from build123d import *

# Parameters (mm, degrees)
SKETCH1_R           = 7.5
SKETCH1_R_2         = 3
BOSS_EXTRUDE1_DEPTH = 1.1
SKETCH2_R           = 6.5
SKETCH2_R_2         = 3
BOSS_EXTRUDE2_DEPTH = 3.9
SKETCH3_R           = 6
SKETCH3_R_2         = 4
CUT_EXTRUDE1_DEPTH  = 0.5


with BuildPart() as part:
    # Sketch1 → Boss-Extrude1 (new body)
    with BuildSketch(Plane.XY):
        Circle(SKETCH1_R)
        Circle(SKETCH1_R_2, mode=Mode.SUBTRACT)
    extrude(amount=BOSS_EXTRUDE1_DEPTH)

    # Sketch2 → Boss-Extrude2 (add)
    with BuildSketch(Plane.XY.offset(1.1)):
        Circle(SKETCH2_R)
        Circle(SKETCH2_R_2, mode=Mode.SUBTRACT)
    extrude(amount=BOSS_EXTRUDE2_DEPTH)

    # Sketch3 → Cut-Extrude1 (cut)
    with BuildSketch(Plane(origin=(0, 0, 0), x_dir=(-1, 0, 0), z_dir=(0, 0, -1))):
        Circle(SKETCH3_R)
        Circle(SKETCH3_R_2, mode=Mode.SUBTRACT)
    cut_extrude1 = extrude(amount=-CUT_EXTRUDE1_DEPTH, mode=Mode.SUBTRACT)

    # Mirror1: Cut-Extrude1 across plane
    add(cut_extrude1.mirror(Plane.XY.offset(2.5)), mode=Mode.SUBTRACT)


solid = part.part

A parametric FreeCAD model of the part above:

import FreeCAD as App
import Part
import Sketcher

doc = App.newDocument("Part")
body = doc.addObject("PartDesign::Body", "Body")

# Sketch on XY plane
sketch1 = doc.addObject("Sketcher::SketchObject", "Sketch")
body.addObject(sketch1)
sketch1.AttachmentSupport = (doc.XY_Plane, [""])
sketch1.MapMode = "FlatFace"
sketch1.addGeometry(Part.Circle(App.Vector(0, 0, 0), App.Vector(0, 0, 1), 7.5), False)
sketch1.addGeometry(Part.Circle(App.Vector(0, 0, 0), App.Vector(0, 0, 1), 3), False)
sketch1.addConstraint(Sketcher.Constraint("Coincident", 0, 3, -1, 1))
sketch1.addConstraint(Sketcher.Constraint("Coincident", 1, 3, -1, 1))
sketch1.addConstraint(Sketcher.Constraint("Diameter", 0, 15.0))
sketch1.addConstraint(Sketcher.Constraint("Diameter", 1, 6.0))
pad1 = doc.addObject("PartDesign::Pad", "Pad")
body.addObject(pad1)
pad1.Profile = sketch1
pad1.Length = 1.1

# Sketch on XY plane
sketch2 = doc.addObject("Sketcher::SketchObject", "Sketch001")
body.addObject(sketch2)
sketch2.AttachmentSupport = (doc.XY_Plane, [""])
sketch2.MapMode = "FlatFace"
sketch2.AttachmentOffset = App.Placement(App.Vector(0, 0, 1.1), App.Rotation())
sketch2.addGeometry(Part.Circle(App.Vector(0, 0, 0), App.Vector(0, 0, 1), 6.5), False)
sketch2.addGeometry(Part.Circle(App.Vector(0, 0, 0), App.Vector(0, 0, 1), 3), False)
sketch2.addConstraint(Sketcher.Constraint("Coincident", 0, 3, -1, 1))
sketch2.addConstraint(Sketcher.Constraint("Coincident", 1, 3, -1, 1))
sketch2.addConstraint(Sketcher.Constraint("Diameter", 0, 13.0))
sketch2.addConstraint(Sketcher.Constraint("Diameter", 1, 6.0))
pad2 = doc.addObject("PartDesign::Pad", "Pad001")
body.addObject(pad2)
pad2.Profile = sketch2
pad2.Length = 3.9

# Sketch on XY plane
sketch3 = doc.addObject("Sketcher::SketchObject", "Sketch002")
body.addObject(sketch3)
sketch3.AttachmentSupport = (doc.XY_Plane, [""])
sketch3.MapMode = "FlatFace"
sketch3.addGeometry(Part.Circle(App.Vector(0, 0, 0), App.Vector(0, 0, 1), 6), False)
sketch3.addGeometry(Part.Circle(App.Vector(0, 0, 0), App.Vector(0, 0, 1), 4), False)
sketch3.addConstraint(Sketcher.Constraint("Coincident", 0, 3, -1, 1))
sketch3.addConstraint(Sketcher.Constraint("Coincident", 1, 3, -1, 1))
sketch3.addConstraint(Sketcher.Constraint("Diameter", 0, 12.0))
sketch3.addConstraint(Sketcher.Constraint("Diameter", 1, 8.0))
pocket1 = doc.addObject("PartDesign::Pocket", "Pocket")
body.addObject(pocket1)
pocket1.Profile = sketch3
pocket1.Length = 0.5
pocket1.Reversed = True
doc.recompute()

datumplane = doc.addObject("PartDesign::Plane", "DatumPlane")
body.addObject(datumplane)
datumplane.AttachmentSupport = (doc.XY_Plane, [""])
datumplane.MapMode = "FlatFace"
datumplane.AttachmentOffset = App.Placement(App.Vector(0, 0, 2.5), App.Rotation())
mirrored = doc.addObject("PartDesign::Mirrored", "Mirrored")
body.addObject(mirrored)
mirrored.Originals = [pocket1]
mirrored.MirrorPlane = (datumplane, [""])
body.Tip = mirrored

doc.recompute()
